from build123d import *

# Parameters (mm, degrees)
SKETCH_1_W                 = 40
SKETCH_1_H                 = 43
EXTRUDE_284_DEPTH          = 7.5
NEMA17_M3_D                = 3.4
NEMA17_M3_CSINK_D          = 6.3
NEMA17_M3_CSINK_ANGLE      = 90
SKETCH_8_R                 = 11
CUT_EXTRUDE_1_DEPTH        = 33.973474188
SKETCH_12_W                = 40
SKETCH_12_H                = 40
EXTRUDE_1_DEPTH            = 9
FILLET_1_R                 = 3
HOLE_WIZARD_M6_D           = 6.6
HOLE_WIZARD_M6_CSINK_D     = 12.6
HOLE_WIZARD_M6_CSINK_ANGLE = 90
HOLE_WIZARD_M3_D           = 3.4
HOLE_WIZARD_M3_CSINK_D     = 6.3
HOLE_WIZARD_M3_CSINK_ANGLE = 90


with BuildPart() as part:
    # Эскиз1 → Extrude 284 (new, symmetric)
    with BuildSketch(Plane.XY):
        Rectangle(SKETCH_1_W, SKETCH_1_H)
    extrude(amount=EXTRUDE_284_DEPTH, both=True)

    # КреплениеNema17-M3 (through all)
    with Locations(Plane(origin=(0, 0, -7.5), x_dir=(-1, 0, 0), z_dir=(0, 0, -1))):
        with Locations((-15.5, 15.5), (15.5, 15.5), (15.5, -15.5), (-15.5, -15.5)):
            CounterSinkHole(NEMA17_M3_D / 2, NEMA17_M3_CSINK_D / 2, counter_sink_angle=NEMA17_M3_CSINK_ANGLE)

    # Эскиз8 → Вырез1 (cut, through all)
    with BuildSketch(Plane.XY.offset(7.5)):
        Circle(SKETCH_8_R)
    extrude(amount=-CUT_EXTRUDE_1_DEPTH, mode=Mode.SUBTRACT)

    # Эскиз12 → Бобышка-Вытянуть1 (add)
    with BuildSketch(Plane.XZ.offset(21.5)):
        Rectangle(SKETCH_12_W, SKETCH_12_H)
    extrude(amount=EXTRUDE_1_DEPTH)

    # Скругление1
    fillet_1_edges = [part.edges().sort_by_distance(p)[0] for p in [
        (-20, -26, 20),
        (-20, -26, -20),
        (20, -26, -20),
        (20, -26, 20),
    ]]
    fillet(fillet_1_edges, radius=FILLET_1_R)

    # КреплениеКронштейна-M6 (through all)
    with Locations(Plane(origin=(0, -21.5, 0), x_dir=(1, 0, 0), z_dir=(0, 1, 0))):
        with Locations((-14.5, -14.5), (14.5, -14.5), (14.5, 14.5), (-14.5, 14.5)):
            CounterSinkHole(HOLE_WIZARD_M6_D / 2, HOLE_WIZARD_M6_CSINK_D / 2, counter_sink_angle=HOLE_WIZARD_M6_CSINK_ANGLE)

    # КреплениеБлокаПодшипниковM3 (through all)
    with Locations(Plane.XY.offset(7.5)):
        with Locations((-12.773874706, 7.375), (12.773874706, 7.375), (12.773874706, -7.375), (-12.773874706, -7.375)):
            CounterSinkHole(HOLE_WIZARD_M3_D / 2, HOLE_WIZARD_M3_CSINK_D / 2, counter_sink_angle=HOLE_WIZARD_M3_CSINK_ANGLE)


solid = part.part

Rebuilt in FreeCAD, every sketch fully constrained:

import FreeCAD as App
import Part
import Sketcher


def edges_at(feature, points):
    """Names of the edges that pass closest to the given points."""
    edges = feature.Shape.Edges
    near = lambda p: min(range(len(edges)), key=lambda i: edges[i].distToShape(Part.Vertex(*p))[0])
    return sorted({f"Edge{near(p) + 1}" for p in points})

doc = App.newDocument("Part")
body = doc.addObject("PartDesign::Body", "Body")

# Sketch on XY plane
sketch1 = doc.addObject("Sketcher::SketchObject", "Sketch")
body.addObject(sketch1)
sketch1.AttachmentSupport = (doc.XY_Plane, [""])
sketch1.MapMode = "FlatFace"
sketch1.addGeometry([
    Part.LineSegment(App.Vector(-20, 22, 0), App.Vector(-20, -22, 0)),
    Part.LineSegment(App.Vector(-20, -22, 0), App.Vector(20, -22, 0)),
    Part.LineSegment(App.Vector(20, -22, 0), App.Vector(20, 22, 0)),
    Part.LineSegment(App.Vector(20, 22, 0), App.Vector(-20, 22, 0)),
], False)
sketch1.addConstraint([
    Sketcher.Constraint("Coincident", 0, 2, 1, 1),
    Sketcher.Constraint("Coincident", 1, 2, 2, 1),
    Sketcher.Constraint("Coincident", 2, 2, 3, 1),
    Sketcher.Constraint("Coincident", 3, 2, 0, 1),
    Sketcher.Constraint("Vertical", 0),
    Sketcher.Constraint("Horizontal", 1),
    Sketcher.Constraint("Vertical", 2),
    Sketcher.Constraint("Horizontal", 3),
    Sketcher.Constraint("Symmetric", 0, 2, 2, 2, -1, 1),
    Sketcher.Constraint("DistanceX", 1, 1, 1, 2, 40.0),
    Sketcher.Constraint("DistanceY", 0, 2, 0, 1, 43.0),
])
pad1 = doc.addObject("PartDesign::Pad", "Pad")
body.addObject(pad1)
pad1.Profile = sketch1
pad1.Length = 15
pad1.Midplane = True

# Sketch on XY plane
sketch2 = doc.addObject("Sketcher::SketchObject", "Sketch001")
body.addObject(sketch2)
sketch2.AttachmentSupport = (doc.XY_Plane, [""])
sketch2.MapMode = "FlatFace"
sketch2.AttachmentOffset = App.Placement(App.Vector(0, 0, -7.5), App.Rotation())
sketch2.addGeometry([
    Part.Circle(App.Vector(15.5, 15.5, 0), App.Vector(0, 0, 1), 1.7),
    Part.Circle(App.Vector(-15.5, 15.5, 0), App.Vector(0, 0, 1), 1.7),
    Part.Circle(App.Vector(-15.5, -15.5, 0), App.Vector(0, 0, 1), 1.7),
    Part.Circle(App.Vector(15.5, -15.5, 0), App.Vector(0, 0, 1), 1.7),
], False)
sketch2.addConstraint([
    Sketcher.Constraint("Equal", 0, 1),
    Sketcher.Constraint("Equal", 1, 2),
    Sketcher.Constraint("Equal", 2, 3),
    Sketcher.Constraint("Symmetric", 0, 3, 2, 3, -1, 1),
    Sketcher.Constraint("Symmetric", 1, 3, 3, 3, -1, 1),
    Sketcher.Constraint("Symmetric", 0, 3, 1, 3, -2),
    Sketcher.Constraint("Diameter", 0, 3.4),
    Sketcher.Constraint("DistanceX", 1, 3, 0, 3, 31.0),
    Sketcher.Constraint("DistanceY", 2, 3, 1, 3, 31.0),
])
doc.recompute()
hole = doc.addObject("PartDesign::Hole", "Hole")
body.addObject(hole)
hole.Profile = sketch2
hole.ThreadType = "None"
hole.Diameter = 3.4
hole.DepthType = "ThroughAll"
hole.HoleCutType = "Countersink"
hole.HoleCutDiameter = 6.3
hole.HoleCutCountersinkAngle = 90
hole.Reversed = True

# Sketch on XY plane
sketch3 = doc.addObject("Sketcher::SketchObject", "Sketch002")
body.addObject(sketch3)
sketch3.AttachmentSupport = (doc.XY_Plane, [""])
sketch3.MapMode = "FlatFace"
sketch3.AttachmentOffset = App.Placement(App.Vector(0, 0, 7.5), App.Rotation())
sketch3.addGeometry(Part.Circle(App.Vector(0, 0, 0), App.Vector(0, 0, 1), 11), False)
sketch3.addConstraint([
    Sketcher.Constraint("Coincident", 0, 3, -1, 1),
    Sketcher.Constraint("Diameter", 0, 22.0),
])
pocket1 = doc.addObject("PartDesign::Pocket", "Pocket")
body.addObject(pocket1)
pocket1.Profile = sketch3
pocket1.Type = "ThroughAll"

# Sketch on XZ plane
sketch4 = doc.addObject("Sketcher::SketchObject", "Sketch003")
body.addObject(sketch4)
sketch4.AttachmentSupport = (doc.XZ_Plane, [""])
sketch4.MapMode = "FlatFace"
sketch4.AttachmentOffset = App.Placement(App.Vector(0, 0, 21.5), App.Rotation())
sketch4.addGeometry([
    Part.LineSegment(App.Vector(-20, 20, 0), App.Vector(-20, -20, 0)),
    Part.LineSegment(App.Vector(-20, -20, 0), App.Vector(20, -20, 0)),
    Part.LineSegment(App.Vector(20, -20, 0), App.Vector(20, 20, 0)),
    Part.LineSegment(App.Vector(20, 20, 0), App.Vector(-20, 20, 0)),
], False)
sketch4.addConstraint([
    Sketcher.Constraint("Coincident", 0, 2, 1, 1),
    Sketcher.Constraint("Coincident", 1, 2, 2, 1),
    Sketcher.Constraint("Coincident", 2, 2, 3, 1),
    Sketcher.Constraint("Coincident", 3, 2, 0, 1),
    Sketcher.Constraint("Vertical", 0),
    Sketcher.Constraint("Horizontal", 1),
    Sketcher.Constraint("Vertical", 2),
    Sketcher.Constraint("Horizontal", 3),
    Sketcher.Constraint("Symmetric", 0, 2, 2, 2, -1, 1),
    Sketcher.Constraint("Equal", 3, 0),
    Sketcher.Constraint("DistanceX", 1, 1, 1, 2, 40.0),
])
pad2 = doc.addObject("PartDesign::Pad", "Pad001")
body.addObject(pad2)
pad2.Profile = sketch4
pad2.Length = 9
doc.recompute()

fillet = doc.addObject("PartDesign::Fillet", "Fillet")
body.addObject(fillet)
fillet.Base = (pad2, edges_at(pad2, [
    (-20, -26, 20),
    (-20, -26, -20),
    (20, -26, -20),
    (20, -26, 20),
]))
fillet.Radius = 3

# Sketch on XZ plane
sketch5 = doc.addObject("Sketcher::SketchObject", "Sketch004")
body.addObject(sketch5)
sketch5.AttachmentSupport = (doc.XZ_Plane, [""])
sketch5.MapMode = "FlatFace"
sketch5.AttachmentOffset = App.Placement(App.Vector(0, 0, 21.5), App.Rotation())
sketch5.addGeometry([
    Part.Circle(App.Vector(-14.5, 14.5, 0), App.Vector(0, 0, 1), 3.3),
    Part.Circle(App.Vector(14.5, 14.5, 0), App.Vector(0, 0, 1), 3.3),
    Part.Circle(App.Vector(14.5, -14.5, 0), App.Vector(0, 0, 1), 3.3),
    Part.Circle(App.Vector(-14.5, -14.5, 0), App.Vector(0, 0, 1), 3.3),
], False)
sketch5.addConstraint([
    Sketcher.Constraint("Equal", 0, 1),
    Sketcher.Constraint("Equal", 1, 2),
    Sketcher.Constraint("Equal", 2, 3),
    Sketcher.Constraint("Symmetric", 0, 3, 2, 3, -1, 1),
    Sketcher.Constraint("Symmetric", 1, 3, 3, 3, -1, 1),
    Sketcher.Constraint("Symmetric", 0, 3, 1, 3, -2),
    Sketcher.Constraint("Diameter", 0, 6.6),
    Sketcher.Constraint("DistanceX", 0, 3, 1, 3, 29.0),
    Sketcher.Constraint("DistanceY", 2, 3, 1, 3, 29.0),
])
doc.recompute()
hole2 = doc.addObject("PartDesign::Hole", "Hole001")
body.addObject(hole2)
hole2.Profile = sketch5
hole2.ThreadType = "None"
hole2.Diameter = 6.6
hole2.DepthType = "ThroughAll"
hole2.HoleCutType = "Countersink"
hole2.HoleCutDiameter = 12.6
hole2.HoleCutCountersinkAngle = 90
hole2.Reversed = True

# Sketch on XY plane
sketch6 = doc.addObject("Sketcher::SketchObject", "Sketch005")
body.addObject(sketch6)
sketch6.AttachmentSupport = (doc.XY_Plane, [""])
sketch6.MapMode = "FlatFace"
sketch6.AttachmentOffset = App.Placement(App.Vector(0, 0, 7.5), App.Rotation())
sketch6.addGeometry([
    Part.Circle(App.Vector(-12.8, 7.4, 0), App.Vector(0, 0, 1), 1.7),
    Part.Circle(App.Vector(12.8, 7.4, 0), App.Vector(0, 0, 1), 1.7),
    Part.Circle(App.Vector(12.8, -7.4, 0), App.Vector(0, 0, 1), 1.7),
    Part.Circle(App.Vector(-12.8, -7.4, 0), App.Vector(0, 0, 1), 1.7),
], False)
sketch6.addConstraint([
    Sketcher.Constraint("Equal", 0, 1),
    Sketcher.Constraint("Equal", 1, 2),
    Sketcher.Constraint("Equal", 2, 3),
    Sketcher.Constraint("Symmetric", 0, 3, 2, 3, -1, 1),
    Sketcher.Constraint("Symmetric", 1, 3, 3, 3, -1, 1),
    Sketcher.Constraint("Symmetric", 0, 3, 1, 3, -2),
    Sketcher.Constraint("Diameter", 0, 3.4),
    Sketcher.Constraint("DistanceY", 2, 3, 1, 3, 14.75),
    Sketcher.Constraint("DistanceX", 0, 3, 1, 3, 25.547749),
])
doc.recompute()
hole3 = doc.addObject("PartDesign::Hole", "Hole002")
body.addObject(hole3)
hole3.Profile = sketch6
hole3.ThreadType = "None"
hole3.Diameter = 3.4
hole3.DepthType = "ThroughAll"
hole3.HoleCutType = "Countersink"
hole3.HoleCutDiameter = 6.3
hole3.HoleCutCountersinkAngle = 90

doc.recompute()
